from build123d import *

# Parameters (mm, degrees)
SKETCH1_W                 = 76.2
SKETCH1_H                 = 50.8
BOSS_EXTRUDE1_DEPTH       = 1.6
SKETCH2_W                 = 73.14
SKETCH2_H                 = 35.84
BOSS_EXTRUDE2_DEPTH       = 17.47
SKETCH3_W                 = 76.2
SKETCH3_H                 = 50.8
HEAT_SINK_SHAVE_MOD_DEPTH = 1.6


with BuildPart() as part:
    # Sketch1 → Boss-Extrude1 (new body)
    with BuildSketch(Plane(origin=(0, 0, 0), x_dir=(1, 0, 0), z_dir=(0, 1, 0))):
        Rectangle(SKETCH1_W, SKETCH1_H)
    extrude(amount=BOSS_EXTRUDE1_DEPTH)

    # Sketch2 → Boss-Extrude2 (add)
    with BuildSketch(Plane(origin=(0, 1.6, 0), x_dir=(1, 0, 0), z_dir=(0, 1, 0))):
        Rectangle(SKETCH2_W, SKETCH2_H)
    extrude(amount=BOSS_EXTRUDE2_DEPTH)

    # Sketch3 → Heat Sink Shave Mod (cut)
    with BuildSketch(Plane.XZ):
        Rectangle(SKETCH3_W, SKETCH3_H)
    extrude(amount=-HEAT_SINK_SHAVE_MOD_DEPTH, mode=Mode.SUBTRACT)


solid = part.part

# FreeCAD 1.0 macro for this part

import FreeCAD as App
import Part
import Sketcher
Q = App.Units.Quantity

doc = App.newDocument("Part")
params = doc.addObject("Spreadsheet::Sheet", "Params")
for row, (alias, value) in enumerate([
    ("sketch1_width", "3 in"),
    ("sketch1_height", "2 in"),
    ("pad1_length", "1.6 mm"),
    ("pad2_length", "17.47 mm"),
    ("sketch3_width", "3 in"),
    ("sketch3_height", "2 in"),
    ("pocket1_length", "1.6 mm"),
], start=1):
    params.set(f"A{row}", alias)
    params.set(f"B{row}", "=" + value)
    params.setAlias(f"B{row}", alias)

body = doc.addObject("PartDesign::Body", "Body")

# Sketch on XZ plane
sketch1 = body.newObject("Sketcher::SketchObject", "Sketch")
sketch1.AttachmentSupport = (doc.getObject("XZ_Plane"), [""])
sketch1.MapMode = "FlatFace"
sketch1.addGeometry([
    Part.LineSegment(App.Vector(-38.1, -25.4, 0), App.Vector(-38.1, 25.4, 0)),
    Part.LineSegment(App.Vector(-38.1, 25.4, 0), App.Vector(38.1, 25.4, 0)),
    Part.LineSegment(App.Vector(38.1, 25.4, 0), App.Vector(38.1, -25.4, 0)),
    Part.LineSegment(App.Vector(38.1, -25.4, 0), App.Vector(-38.1, -25.4, 0)),
], False)
sketch1.addConstraint([
    Sketcher.Constraint("Coincident", 0, 2, 1, 1),
    Sketcher.Constraint("Coincident", 1, 2, 2, 1),
    Sketcher.Constraint("Coincident", 2, 2, 3, 1),
    Sketcher.Constraint("Coincident", 3, 2, 0, 1),
    Sketcher.Constraint("Vertical", 0),
    Sketcher.Constraint("Horizontal", 1),
    Sketcher.Constraint("Vertical", 2),
    Sketcher.Constraint("Horizontal", 3),
    Sketcher.Constraint("Symmetric", 0, 2, 2, 2, -1, 1),
    Sketcher.Constraint("DistanceX", 1, 1, 1, 2, Q("3 in")),
    Sketcher.Constraint("DistanceY", 0, 1, 0, 2, Q("2 in")),
])
sketch1.setExpression("Constraints[9]", "Params.sketch1_width")
sketch1.setExpression("Constraints[10]", "Params.sketch1_height")
pad1 = body.newObject("PartDesign::Pad", "Pad")
pad1.Profile = sketch1
pad1.setExpression("Length", "Params.pad1_length")
pad1.Reversed = True

# Sketch on XZ plane
sketch2 = body.newObject("Sketcher::SketchObject", "Sketch001")
sketch2.AttachmentSupport = (doc.getObject("XZ_Plane"), [""])
sketch2.MapMode = "FlatFace"
sketch2.AttachmentOffset = App.Placement(App.Vector(0, 0, -1.6), App.Rotation())
sketch2.addGeometry([
    Part.LineSegment(App.Vector(-36.57, -17.92, 0), App.Vector(-36.57, 17.92, 0)),
    Part.LineSegment(App.Vector(-36.57, 17.92, 0), App.Vector(36.57, 17.92, 0)),
    Part.LineSegment(App.Vector(36.57, 17.92, 0), App.Vector(36.57, -17.92, 0)),
    Part.LineSegment(App.Vector(36.57, -17.92, 0), App.Vector(-36.57, -17.92, 0)),
], False)
sketch2.addConstraint([
    Sketcher.Constraint("Coincident", 0, 2, 1, 1),
    Sketcher.Constraint("Coincident", 1, 2, 2, 1),
    Sketcher.Constraint("Coincident", 2, 2, 3, 1),
    Sketcher.Constraint("Coincident", 3, 2, 0, 1),
    Sketcher.Constraint("Vertical", 0),
    Sketcher.Constraint("Horizontal", 1),
    Sketcher.Constraint("Vertical", 2),
    Sketcher.Constraint("Horizontal", 3),
    Sketcher.Constraint("Symmetric", 0, 2, 2, 2, -1, 1),
    Sketcher.Constraint("DistanceX", 1, 1, 1, 2, Q("73.14 mm")),
    Sketcher.Constraint("DistanceY", 0, 1, 0, 2, Q("35.84 mm")),
])
pad2 = body.newObject("PartDesign::Pad", "Pad001")
pad2.Profile = sketch2
pad2.setExpression("Length", "Params.pad2_length")
pad2.Reversed = True

# Sketch on XZ plane
sketch3 = body.newObject("Sketcher::SketchObject", "Sketch002")
sketch3.AttachmentSupport = (doc.getObject("XZ_Plane"), [""])
sketch3.MapMode = "FlatFace"
sketch3.addGeometry([
    Part.LineSegment(App.Vector(-38.1, 25.4, 0), App.Vector(-38.1, -25.4, 0)),
    Part.LineSegment(App.Vector(-38.1, -25.4, 0), App.Vector(38.1, -25.4, 0)),
    Part.LineSegment(App.Vector(38.1, -25.4, 0), App.Vector(38.1, 25.4, 0)),
    Part.LineSegment(App.Vector(38.1, 25.4, 0), App.Vector(-38.1, 25.4, 0)),
], False)
sketch3.addConstraint([
    Sketcher.Constraint("Coincident", 0, 2, 1, 1),
    Sketcher.Constraint("Coincident", 1, 2, 2, 1),
    Sketcher.Constraint("Coincident", 2, 2, 3, 1),
    Sketcher.Constraint("Coincident", 3, 2, 0, 1),
    Sketcher.Constraint("Vertical", 0),
    Sketcher.Constraint("Horizontal", 1),
    Sketcher.Constraint("Vertical", 2),
    Sketcher.Constraint("Horizontal", 3),
    Sketcher.Constraint("Symmetric", 0, 2, 2, 2, -1, 1),
    Sketcher.Constraint("DistanceX", 1, 1, 1, 2, Q("3 in")),
    Sketcher.Constraint("DistanceY", 0, 2, 0, 1, Q("2 in")),
])
sketch3.setExpression("Constraints[9]", "Params.sketch3_width")
sketch3.setExpression("Constraints[10]", "Params.sketch3_height")
pocket1 = body.newObject("PartDesign::Pocket", "Pocket")
pocket1.Profile = sketch3
pocket1.setExpression("Length", "Params.pocket1_length")

doc.recompute()
